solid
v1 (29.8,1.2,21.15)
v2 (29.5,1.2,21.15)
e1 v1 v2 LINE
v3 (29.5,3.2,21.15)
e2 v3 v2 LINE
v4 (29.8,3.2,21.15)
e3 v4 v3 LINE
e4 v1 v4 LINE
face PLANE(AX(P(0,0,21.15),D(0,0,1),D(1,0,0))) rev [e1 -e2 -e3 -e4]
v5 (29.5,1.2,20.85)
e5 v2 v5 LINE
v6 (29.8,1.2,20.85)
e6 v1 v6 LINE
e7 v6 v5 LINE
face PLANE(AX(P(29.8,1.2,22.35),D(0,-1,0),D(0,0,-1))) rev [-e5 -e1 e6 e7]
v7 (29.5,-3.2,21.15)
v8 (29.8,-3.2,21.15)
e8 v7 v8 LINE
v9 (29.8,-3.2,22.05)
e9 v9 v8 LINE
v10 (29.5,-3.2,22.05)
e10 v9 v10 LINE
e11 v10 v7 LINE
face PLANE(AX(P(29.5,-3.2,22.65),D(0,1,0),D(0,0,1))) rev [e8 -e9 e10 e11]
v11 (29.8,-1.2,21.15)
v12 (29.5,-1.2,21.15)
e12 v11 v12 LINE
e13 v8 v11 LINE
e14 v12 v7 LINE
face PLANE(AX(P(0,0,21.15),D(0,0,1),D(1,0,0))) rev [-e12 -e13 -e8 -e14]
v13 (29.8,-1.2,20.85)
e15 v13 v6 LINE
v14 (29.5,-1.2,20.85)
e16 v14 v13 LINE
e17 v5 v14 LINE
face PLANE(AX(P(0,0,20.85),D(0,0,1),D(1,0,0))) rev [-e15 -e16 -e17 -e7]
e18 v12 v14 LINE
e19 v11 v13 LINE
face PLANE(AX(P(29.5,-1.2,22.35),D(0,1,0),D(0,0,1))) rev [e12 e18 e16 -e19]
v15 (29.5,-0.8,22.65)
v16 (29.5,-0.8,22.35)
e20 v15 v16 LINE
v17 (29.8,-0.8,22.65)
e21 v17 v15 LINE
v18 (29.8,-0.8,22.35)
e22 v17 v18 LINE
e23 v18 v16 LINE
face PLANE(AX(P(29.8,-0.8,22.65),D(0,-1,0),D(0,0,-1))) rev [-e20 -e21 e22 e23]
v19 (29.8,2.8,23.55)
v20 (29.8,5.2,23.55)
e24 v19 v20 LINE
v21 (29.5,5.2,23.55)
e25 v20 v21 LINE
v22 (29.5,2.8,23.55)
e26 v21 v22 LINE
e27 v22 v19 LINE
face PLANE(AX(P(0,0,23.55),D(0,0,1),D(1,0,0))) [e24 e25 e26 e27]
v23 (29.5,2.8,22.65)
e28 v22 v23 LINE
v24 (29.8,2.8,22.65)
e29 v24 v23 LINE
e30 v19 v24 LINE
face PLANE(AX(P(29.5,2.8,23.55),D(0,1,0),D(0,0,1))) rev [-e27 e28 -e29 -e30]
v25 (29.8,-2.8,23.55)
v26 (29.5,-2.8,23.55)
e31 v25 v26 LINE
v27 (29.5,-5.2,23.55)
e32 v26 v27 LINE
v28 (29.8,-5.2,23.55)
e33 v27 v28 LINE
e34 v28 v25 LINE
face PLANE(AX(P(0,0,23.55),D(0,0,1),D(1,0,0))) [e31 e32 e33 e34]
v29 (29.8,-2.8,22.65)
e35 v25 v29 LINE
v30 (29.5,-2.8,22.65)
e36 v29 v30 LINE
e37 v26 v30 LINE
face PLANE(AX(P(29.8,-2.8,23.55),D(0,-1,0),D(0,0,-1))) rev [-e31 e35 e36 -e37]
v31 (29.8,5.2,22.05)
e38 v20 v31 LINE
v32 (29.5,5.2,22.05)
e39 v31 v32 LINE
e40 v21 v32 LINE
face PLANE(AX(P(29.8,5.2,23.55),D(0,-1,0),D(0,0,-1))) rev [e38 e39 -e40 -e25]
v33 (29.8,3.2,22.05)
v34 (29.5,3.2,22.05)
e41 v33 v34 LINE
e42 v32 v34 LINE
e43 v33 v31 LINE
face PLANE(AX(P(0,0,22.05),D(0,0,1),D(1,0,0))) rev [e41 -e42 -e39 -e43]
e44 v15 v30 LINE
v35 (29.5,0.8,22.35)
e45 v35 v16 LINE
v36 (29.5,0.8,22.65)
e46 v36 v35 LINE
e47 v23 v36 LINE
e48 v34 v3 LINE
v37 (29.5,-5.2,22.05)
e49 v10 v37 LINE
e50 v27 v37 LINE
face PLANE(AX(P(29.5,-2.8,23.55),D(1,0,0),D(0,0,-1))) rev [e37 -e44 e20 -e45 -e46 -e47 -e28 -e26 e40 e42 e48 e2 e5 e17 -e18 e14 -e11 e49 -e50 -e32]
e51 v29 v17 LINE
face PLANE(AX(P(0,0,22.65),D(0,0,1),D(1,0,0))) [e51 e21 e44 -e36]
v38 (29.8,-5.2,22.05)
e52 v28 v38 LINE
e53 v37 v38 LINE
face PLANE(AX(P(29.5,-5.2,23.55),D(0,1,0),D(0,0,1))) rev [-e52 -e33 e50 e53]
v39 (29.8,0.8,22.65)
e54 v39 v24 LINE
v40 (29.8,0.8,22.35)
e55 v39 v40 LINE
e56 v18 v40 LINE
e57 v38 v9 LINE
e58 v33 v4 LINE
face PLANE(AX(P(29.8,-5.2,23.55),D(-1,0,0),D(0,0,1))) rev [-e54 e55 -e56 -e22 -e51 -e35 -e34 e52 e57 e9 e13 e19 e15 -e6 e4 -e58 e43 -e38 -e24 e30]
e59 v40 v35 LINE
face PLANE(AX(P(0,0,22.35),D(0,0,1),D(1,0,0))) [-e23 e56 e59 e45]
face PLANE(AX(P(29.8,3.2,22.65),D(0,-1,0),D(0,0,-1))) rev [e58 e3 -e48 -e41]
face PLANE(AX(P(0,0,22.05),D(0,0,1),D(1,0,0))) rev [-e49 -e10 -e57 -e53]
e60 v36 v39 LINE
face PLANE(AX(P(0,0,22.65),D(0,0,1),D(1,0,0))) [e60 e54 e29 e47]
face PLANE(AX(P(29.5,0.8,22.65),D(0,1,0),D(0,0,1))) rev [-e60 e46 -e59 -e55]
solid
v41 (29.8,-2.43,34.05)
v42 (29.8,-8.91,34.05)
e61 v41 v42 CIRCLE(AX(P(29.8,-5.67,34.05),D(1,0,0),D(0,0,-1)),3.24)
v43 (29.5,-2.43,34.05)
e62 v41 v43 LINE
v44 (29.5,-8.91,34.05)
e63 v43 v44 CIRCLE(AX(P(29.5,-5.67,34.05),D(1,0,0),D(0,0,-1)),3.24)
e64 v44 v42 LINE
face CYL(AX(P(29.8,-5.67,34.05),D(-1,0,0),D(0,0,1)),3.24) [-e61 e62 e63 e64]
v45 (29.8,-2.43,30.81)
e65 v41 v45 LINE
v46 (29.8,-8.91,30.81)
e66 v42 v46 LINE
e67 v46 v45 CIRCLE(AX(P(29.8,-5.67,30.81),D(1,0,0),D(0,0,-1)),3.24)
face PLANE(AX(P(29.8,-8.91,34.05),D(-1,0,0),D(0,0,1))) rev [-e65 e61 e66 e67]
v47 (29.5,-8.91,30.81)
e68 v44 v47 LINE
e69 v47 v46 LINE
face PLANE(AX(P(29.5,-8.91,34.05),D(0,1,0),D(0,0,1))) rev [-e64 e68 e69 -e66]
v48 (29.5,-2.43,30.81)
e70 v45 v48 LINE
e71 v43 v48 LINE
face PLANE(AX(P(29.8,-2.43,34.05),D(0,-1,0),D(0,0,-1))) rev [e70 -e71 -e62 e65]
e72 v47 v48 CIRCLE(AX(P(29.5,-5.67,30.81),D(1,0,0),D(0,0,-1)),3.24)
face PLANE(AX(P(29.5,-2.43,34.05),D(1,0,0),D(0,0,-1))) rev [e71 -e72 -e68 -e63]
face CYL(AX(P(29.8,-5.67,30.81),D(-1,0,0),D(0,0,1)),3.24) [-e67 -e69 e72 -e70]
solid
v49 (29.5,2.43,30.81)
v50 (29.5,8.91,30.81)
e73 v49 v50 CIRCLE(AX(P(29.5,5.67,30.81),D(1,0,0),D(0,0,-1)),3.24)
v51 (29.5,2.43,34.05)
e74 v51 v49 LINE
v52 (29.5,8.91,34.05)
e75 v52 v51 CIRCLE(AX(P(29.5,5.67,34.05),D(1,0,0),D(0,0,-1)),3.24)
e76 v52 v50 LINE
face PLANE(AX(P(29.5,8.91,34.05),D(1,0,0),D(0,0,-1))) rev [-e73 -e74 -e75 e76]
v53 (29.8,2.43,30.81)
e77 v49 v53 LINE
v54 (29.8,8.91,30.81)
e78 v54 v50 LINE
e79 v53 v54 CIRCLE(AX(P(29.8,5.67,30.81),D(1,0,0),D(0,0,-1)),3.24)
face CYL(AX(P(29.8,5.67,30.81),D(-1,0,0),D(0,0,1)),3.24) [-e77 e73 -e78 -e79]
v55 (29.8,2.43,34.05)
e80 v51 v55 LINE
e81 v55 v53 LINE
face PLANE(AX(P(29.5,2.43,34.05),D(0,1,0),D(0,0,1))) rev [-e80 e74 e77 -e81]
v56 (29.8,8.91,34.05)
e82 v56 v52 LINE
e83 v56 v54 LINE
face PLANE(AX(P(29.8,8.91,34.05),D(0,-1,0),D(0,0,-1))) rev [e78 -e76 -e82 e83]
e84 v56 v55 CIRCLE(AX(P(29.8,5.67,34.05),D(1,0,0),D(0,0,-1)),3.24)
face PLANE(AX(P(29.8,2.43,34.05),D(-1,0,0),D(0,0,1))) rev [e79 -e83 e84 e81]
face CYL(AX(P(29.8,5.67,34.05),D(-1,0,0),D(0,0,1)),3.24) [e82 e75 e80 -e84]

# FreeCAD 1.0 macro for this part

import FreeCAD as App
import Part
import Sketcher


def add_polygon(sketch, points):
    """Adds a closed chain of lines whose ends are joined by coincident constraints."""
    first, n = sketch.GeometryCount, len(points)
    for a, b in zip(points, points[1:] + points[:1]):
        sketch.addGeometry(Part.LineSegment(App.Vector(*a, 0), App.Vector(*b, 0)), False)
    for i in range(n):
        sketch.addConstraint(Sketcher.Constraint("Coincident", first + i, 2, first + (i + 1) % n, 1))

doc = App.newDocument("Part")
body = doc.addObject("PartDesign::Body", "Body")

sketch1 = body.newObject("Sketcher::SketchObject", "Sketch")
sketch1.AttachmentSupport = (doc.getObject("XY_Plane"), [""])
sketch1.MapMode = "FlatFace"
sketch1.AttachmentOffset = App.Placement(App.Vector(0, 0, 30.81), App.Rotation())
add_polygon(sketch1, [(29.5, 8.91), (29.5, 2.43), (29.8, 2.43), (29.8, 8.91)])
sketch1.addConstraint([
    Sketcher.Constraint("Vertical", 0),
    Sketcher.Constraint("Horizontal", 1),
    Sketcher.Constraint("Vertical", 2),
    Sketcher.Constraint("Horizontal", 3),
    Sketcher.Constraint("DistanceX", 1, 1, 1, 2, 0.3),
    Sketcher.Constraint("DistanceY", 0, 2, 0, 1, 6.48),
    Sketcher.Constraint("DistanceX", -1, 1, 0, 2, 29.5),
    Sketcher.Constraint("DistanceY", -1, 1, 0, 2, 2.43),
])
pad1 = body.newObject("PartDesign::Pad", "Pad")
pad1.Profile = sketch1
pad1.Length = 3.24

sketch2 = body.newObject("Sketcher::SketchObject", "Sketch001")
sketch2.AttachmentSupport = (doc.getObject("YZ_Plane"), [""])
sketch2.MapMode = "FlatFace"
sketch2.AttachmentOffset = App.Placement(App.Vector(0, 0, 29.5), App.Rotation())
sketch2.addGeometry(Part.Circle(App.Vector(5.7, 30.8, 0), App.Vector(0, 0, 1), 3.2), False)
sketch2.addConstraint([
    Sketcher.Constraint("Diameter", 0, 6.48),
    Sketcher.Constraint("DistanceX", -1, 1, 0, 3, 5.67),
    Sketcher.Constraint("DistanceY", -1, 1, 0, 3, 30.81),
])
pad2 = body.newObject("PartDesign::Pad", "Pad001")
pad2.Profile = sketch2
pad2.Length = 0.3

sketch3 = body.newObject("Sketcher::SketchObject", "Sketch002")
sketch3.AttachmentSupport = (doc.getObject("YZ_Plane"), [""])
sketch3.MapMode = "FlatFace"
sketch3.AttachmentOffset = App.Placement(App.Vector(0, 0, 29.5), App.Rotation())
sketch3.addGeometry(Part.Circle(App.Vector(5.7, 34, 0), App.Vector(0, 0, 1), 3.2), False)
sketch3.addConstraint([
    Sketcher.Constraint("Diameter", 0, 6.48),
    Sketcher.Constraint("DistanceX", -1, 1, 0, 3, 5.67),
    Sketcher.Constraint("DistanceY", -1, 1, 0, 3, 34.05),
])
pad3 = body.newObject("PartDesign::Pad", "Pad002")
pad3.Profile = sketch3
pad3.Length = 0.3
body2 = doc.addObject("PartDesign::Body", "Body001")

sketch4 = body2.newObject("Sketcher::SketchObject", "Sketch003")
sketch4.AttachmentSupport = (doc.getObject("XY_Plane001"), [""])
sketch4.MapMode = "FlatFace"
sketch4.AttachmentOffset = App.Placement(App.Vector(0, 0, 30.81), App.Rotation())
add_polygon(sketch4, [(29.5, -2.43), (29.5, -8.91), (29.8, -8.91), (29.8, -2.43)])
sketch4.addConstraint([
    Sketcher.Constraint("Vertical", 0),
    Sketcher.Constraint("Horizontal", 1),
    Sketcher.Constraint("Vertical", 2),
    Sketcher.Constraint("Horizontal", 3),
    Sketcher.Constraint("DistanceX", 1, 1, 1, 2, 0.3),
    Sketcher.Constraint("DistanceY", 0, 2, 0, 1, 6.48),
    Sketcher.Constraint("DistanceX", -1, 1, 0, 2, 29.5),
    Sketcher.Constraint("DistanceY", 0, 2, -1, 1, 8.91),
])
pad4 = body2.newObject("PartDesign::Pad", "Pad003")
pad4.Profile = sketch4
pad4.Length = 3.24

sketch5 = body2.newObject("Sketcher::SketchObject", "Sketch004")
sketch5.AttachmentSupport = (doc.getObject("YZ_Plane001"), [""])
sketch5.MapMode = "FlatFace"
sketch5.AttachmentOffset = App.Placement(App.Vector(0, 0, 29.5), App.Rotation())
sketch5.addGeometry(Part.Circle(App.Vector(-5.7, 30.8, 0), App.Vector(0, 0, 1), 3.2), False)
sketch5.addConstraint([
    Sketcher.Constraint("Diameter", 0, 6.48),
    Sketcher.Constraint("DistanceX", 0, 3, -1, 1, 5.67),
    Sketcher.Constraint("DistanceY", -1, 1, 0, 3, 30.81),
])
pad5 = body2.newObject("PartDesign::Pad", "Pad004")
pad5.Profile = sketch5
pad5.Length = 0.3

sketch6 = body2.newObject("Sketcher::SketchObject", "Sketch005")
sketch6.AttachmentSupport = (doc.getObject("YZ_Plane001"), [""])
sketch6.MapMode = "FlatFace"
sketch6.AttachmentOffset = App.Placement(App.Vector(0, 0, 29.5), App.Rotation())
sketch6.addGeometry(Part.Circle(App.Vector(-5.7, 34, 0), App.Vector(0, 0, 1), 3.2), False)
sketch6.addConstraint([
    Sketcher.Constraint("Diameter", 0, 6.48),
    Sketcher.Constraint("DistanceX", 0, 3, -1, 1, 5.67),
    Sketcher.Constraint("DistanceY", -1, 1, 0, 3, 34.05),
])
pad6 = body2.newObject("PartDesign::Pad", "Pad005")
pad6.Profile = sketch6
pad6.Length = 0.3
body3 = doc.addObject("PartDesign::Body", "Body002")

sketch7 = body3.newObject("Sketcher::SketchObject", "Sketch006")
sketch7.AttachmentSupport = (doc.getObject("XY_Plane002"), [""])
sketch7.MapMode = "FlatFace"
sketch7.AttachmentOffset = App.Placement(App.Vector(0, 0, 22.05), App.Rotation())
add_polygon(sketch7, [(29.5, -2.8), (29.5, -5.2), (29.8, -5.2), (29.8, -2.8)])
sketch7.addConstraint([
    Sketcher.Constraint("Vertical", 0),
    Sketcher.Constraint("Horizontal", 1),
    Sketcher.Constraint("Vertical", 2),
    Sketcher.Constraint("Horizontal", 3),
    Sketcher.Constraint("DistanceX", 1, 1, 1, 2, 0.3),
    Sketcher.Constraint("DistanceY", 0, 2, 0, 1, 2.4),
    Sketcher.Constraint("DistanceX", -1, 1, 0, 2, 29.5),
    Sketcher.Constraint("DistanceY", 0, 2, -1, 1, 5.2),
])
pad7 = body3.newObject("PartDesign::Pad", "Pad006")
pad7.Profile = sketch7
pad7.Length = 1.5

sketch8 = body3.newObject("Sketcher::SketchObject", "Sketch007")
sketch8.AttachmentSupport = (doc.getObject("XY_Plane002"), [""])
sketch8.MapMode = "FlatFace"
sketch8.AttachmentOffset = App.Placement(App.Vector(0, 0, 21.15), App.Rotation())
add_polygon(sketch8, [(29.5, -0.8), (29.5, -3.2), (29.8, -3.2), (29.8, -0.8)])
sketch8.addConstraint([
    Sketcher.Constraint("Vertical", 0),
    Sketcher.Constraint("Horizontal", 1),
    Sketcher.Constraint("Vertical", 2),
    Sketcher.Constraint("Horizontal", 3),
    Sketcher.Constraint("DistanceX", 1, 1, 1, 2, 0.3),
    Sketcher.Constraint("DistanceY", 0, 2, 0, 1, 2.4),
    Sketcher.Constraint("DistanceX", -1, 1, 0, 2, 29.5),
    Sketcher.Constraint("DistanceY", 0, 2, -1, 1, 3.2),
])
pad8 = body3.newObject("PartDesign::Pad", "Pad007")
pad8.Profile = sketch8
pad8.Length = 1.5

sketch9 = body3.newObject("Sketcher::SketchObject", "Sketch008")
sketch9.AttachmentSupport = (doc.getObject("XY_Plane002"), [""])
sketch9.MapMode = "FlatFace"
sketch9.AttachmentOffset = App.Placement(App.Vector(0, 0, 20.85), App.Rotation())
add_polygon(sketch9, [(29.5, 1.2), (29.5, -1.2), (29.8, -1.2), (29.8, 1.2)])
sketch9.addConstraint([
    Sketcher.Constraint("Vertical", 0),
    Sketcher.Constraint("Horizontal", 1),
    Sketcher.Constraint("Vertical", 2),
    Sketcher.Constraint("Horizontal", 3),
    Sketcher.Constraint("DistanceX", 1, 1, 1, 2, 0.3),
    Sketcher.Constraint("DistanceY", 0, 2, 0, 1, 2.4),
    Sketcher.Constraint("DistanceX", -1, 1, 0, 2, 29.5),
    Sketcher.Constraint("DistanceY", 0, 2, -1, 1, 1.2),
])
pad9 = body3.newObject("PartDesign::Pad", "Pad008")
pad9.Profile = sketch9
pad9.Length = 1.5

sketch10 = body3.newObject("Sketcher::SketchObject", "Sketch009")
sketch10.AttachmentSupport = (doc.getObject("XY_Plane002"), [""])
sketch10.MapMode = "FlatFace"
sketch10.AttachmentOffset = App.Placement(App.Vector(0, 0, 21.15), App.Rotation())
add_polygon(sketch10, [(29.5, 3.2), (29.5, 0.8), (29.8, 0.8), (29.8, 3.2)])
sketch10.addConstraint([
    Sketcher.Constraint("Vertical", 0),
    Sketcher.Constraint("Horizontal", 1),
    Sketcher.Constraint("Vertical", 2),
    Sketcher.Constraint("Horizontal", 3),
    Sketcher.Constraint("DistanceX", 1, 1, 1, 2, 0.3),
    Sketcher.Constraint("DistanceY", 0, 2, 0, 1, 2.4),
    Sketcher.Constraint("DistanceX", -1, 1, 0, 2, 29.5),
    Sketcher.Constraint("DistanceY", -1, 1, 0, 2, 0.8),
])
pad10 = body3.newObject("PartDesign::Pad", "Pad009")
pad10.Profile = sketch10
pad10.Length = 1.5

sketch11 = body3.newObject("Sketcher::SketchObject", "Sketch010")
sketch11.AttachmentSupport = (doc.getObject("XY_Plane002"), [""])
sketch11.MapMode = "FlatFace"
sketch11.AttachmentOffset = App.Placement(App.Vector(0, 0, 22.05), App.Rotation())
add_polygon(sketch11, [(29.5, 5.2), (29.5, 2.8), (29.8, 2.8), (29.8, 5.2)])
sketch11.addConstraint([
    Sketcher.Constraint("Vertical", 0),
    Sketcher.Constraint("Horizontal", 1),
    Sketcher.Constraint("Vertical", 2),
    Sketcher.Constraint("Horizontal", 3),
    Sketcher.Constraint("DistanceX", 1, 1, 1, 2, 0.3),
    Sketcher.Constraint("DistanceY", 0, 2, 0, 1, 2.4),
    Sketcher.Constraint("DistanceX", -1, 1, 0, 2, 29.5),
    Sketcher.Constraint("DistanceY", -1, 1, 0, 2, 2.8),
])
pad11 = body3.newObject("PartDesign::Pad", "Pad010")
pad11.Profile = sketch11
pad11.Length = 1.5

doc.recompute()
